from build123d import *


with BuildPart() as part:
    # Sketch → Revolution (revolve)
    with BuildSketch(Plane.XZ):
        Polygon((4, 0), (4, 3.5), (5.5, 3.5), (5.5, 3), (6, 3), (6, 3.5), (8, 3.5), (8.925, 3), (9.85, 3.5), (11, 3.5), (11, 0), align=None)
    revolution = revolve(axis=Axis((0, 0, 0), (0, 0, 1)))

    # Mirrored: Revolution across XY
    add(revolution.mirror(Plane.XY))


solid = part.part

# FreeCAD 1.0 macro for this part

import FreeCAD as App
import Part
import Sketcher

doc = App.newDocument("Part")
body = doc.addObject("PartDesign::Body", "Body")

# Sketch on XZ plane
sketch1 = body.newObject("Sketcher::SketchObject", "Sketch")
sketch1.AttachmentSupport = (doc.getObject("XZ_Plane"), [""])
sketch1.MapMode = "FlatFace"
sketch1.addGeometry(Part.LineSegment(App.Vector(4, 3.5, 0), App.Vector(4, 0, 0)), False)
sketch1.addGeometry(Part.LineSegment(App.Vector(4, 0, 0), App.Vector(11, 0, 0)), False)
sketch1.addGeometry(Part.LineSegment(App.Vector(11, 0, 0), App.Vector(11, 3.5, 0)), False)
sketch1.addGeometry(Part.LineSegment(App.Vector(11, 3.5, 0), App.Vector(9.8, 3.5, 0)), False)
sketch1.addGeometry(Part.LineSegment(App.Vector(9.8, 3.5, 0), App.Vector(8.9, 3, 0)), False)
sketch1.addGeometry(Part.LineSegment(App.Vector(8.9, 3, 0), App.Vector(8, 3.5, 0)), False)
sketch1.addGeometry(Part.LineSegment(App.Vector(8, 3.5, 0), App.Vector(6, 3.5, 0)), False)
sketch1.addGeometry(Part.LineSegment(App.Vector(6, 3.5, 0), App.Vector(6, 3, 0)), False)
sketch1.addGeometry(Part.LineSegment(App.Vector(6, 3, 0), App.Vector(5.5, 3, 0)), False)
sketch1.addGeometry(Part.LineSegment(App.Vector(5.5, 3, 0), App.Vector(5.5, 3.5, 0)), False)
sketch1.addGeometry(Part.LineSegment(App.Vector(5.5, 3.5, 0), App.Vector(4, 3.5, 0)), False)
sketch1.addConstraint(Sketcher.Constraint("Coincident", 0, 2, 1, 1))
sketch1.addConstraint(Sketcher.Constraint("Coincident", 1, 2, 2, 1))
sketch1.addConstraint(Sketcher.Constraint("Coincident", 2, 2, 3, 1))
sketch1.addConstraint(Sketcher.Constraint("Coincident", 3, 2, 4, 1))
sketch1.addConstraint(Sketcher.Constraint("Coincident", 4, 2, 5, 1))
sketch1.addConstraint(Sketcher.Constraint("Coincident", 5, 2, 6, 1))
sketch1.addConstraint(Sketcher.Constraint("Coincident", 6, 2, 7, 1))
sketch1.addConstraint(Sketcher.Constraint("Coincident", 7, 2, 8, 1))
sketch1.addConstraint(Sketcher.Constraint("Coincident", 8, 2, 9, 1))
sketch1.addConstraint(Sketcher.Constraint("Coincident", 9, 2, 10, 1))
sketch1.addConstraint(Sketcher.Constraint("Coincident", 10, 2, 0, 1))
sketch1.addConstraint(Sketcher.Constraint("Vertical", 0))
sketch1.addConstraint(Sketcher.Constraint("Horizontal", 1))
sketch1.addConstraint(Sketcher.Constraint("Vertical", 2))
sketch1.addConstraint(Sketcher.Constraint("Horizontal", 3))
sketch1.addConstraint(Sketcher.Constraint("Horizontal", 6))
sketch1.addConstraint(Sketcher.Constraint("Vertical", 7))
sketch1.addConstraint(Sketcher.Constraint("Horizontal", 8))
sketch1.addConstraint(Sketcher.Constraint("Vertical", 9))
sketch1.addConstraint(Sketcher.Constraint("Horizontal", 10))
sketch1.addConstraint(Sketcher.Constraint("PointOnObject", 0, 2, -1))
sketch1.addConstraint(Sketcher.Constraint("Horizontal", 3, 2, 5, 2))
sketch1.addConstraint(Sketcher.Constraint("Horizontal", 4, 2, 7, 2))
sketch1.addConstraint(Sketcher.Constraint("Horizontal", 6, 2, 9, 2))
sketch1.addConstraint(Sketcher.Constraint("Equal", 8, 7))
sketch1.addConstraint(Sketcher.Constraint("Equal", 4, 5))
sketch1.addConstraint(Sketcher.Constraint("DistanceX", 1, 1, 1, 2, 7.0))
sketch1.addConstraint(Sketcher.Constraint("DistanceX", 6, 2, 6, 1, 2.0))
sketch1.addConstraint(Sketcher.Constraint("DistanceX", 8, 2, 8, 1, 0.5))
sketch1.addConstraint(Sketcher.Constraint("DistanceX", 10, 2, 10, 1, 1.5))
sketch1.addConstraint(Sketcher.Constraint("DistanceY", 0, 2, 0, 1, 3.5))
sketch1.addConstraint(Sketcher.Constraint("DistanceX", -1, 1, 0, 2, 4.0))
sketch1.addConstraint(Sketcher.Constraint("DistanceX", 3, 2, 3, 1, 1.15))
revolution = body.newObject("PartDesign::Revolution", "Revolution")
revolution.Profile = sketch1
revolution.ReferenceAxis = (sketch1, ["V_Axis"])
revolution.Angle = 360
doc.recompute()

mirrored = body.newObject("PartDesign::Mirrored", "Mirrored")
mirrored.Originals = [revolution]
mirrored.MirrorPlane = (doc.getObject("XY_Plane"), [""])
body.Tip = mirrored

doc.recompute()
